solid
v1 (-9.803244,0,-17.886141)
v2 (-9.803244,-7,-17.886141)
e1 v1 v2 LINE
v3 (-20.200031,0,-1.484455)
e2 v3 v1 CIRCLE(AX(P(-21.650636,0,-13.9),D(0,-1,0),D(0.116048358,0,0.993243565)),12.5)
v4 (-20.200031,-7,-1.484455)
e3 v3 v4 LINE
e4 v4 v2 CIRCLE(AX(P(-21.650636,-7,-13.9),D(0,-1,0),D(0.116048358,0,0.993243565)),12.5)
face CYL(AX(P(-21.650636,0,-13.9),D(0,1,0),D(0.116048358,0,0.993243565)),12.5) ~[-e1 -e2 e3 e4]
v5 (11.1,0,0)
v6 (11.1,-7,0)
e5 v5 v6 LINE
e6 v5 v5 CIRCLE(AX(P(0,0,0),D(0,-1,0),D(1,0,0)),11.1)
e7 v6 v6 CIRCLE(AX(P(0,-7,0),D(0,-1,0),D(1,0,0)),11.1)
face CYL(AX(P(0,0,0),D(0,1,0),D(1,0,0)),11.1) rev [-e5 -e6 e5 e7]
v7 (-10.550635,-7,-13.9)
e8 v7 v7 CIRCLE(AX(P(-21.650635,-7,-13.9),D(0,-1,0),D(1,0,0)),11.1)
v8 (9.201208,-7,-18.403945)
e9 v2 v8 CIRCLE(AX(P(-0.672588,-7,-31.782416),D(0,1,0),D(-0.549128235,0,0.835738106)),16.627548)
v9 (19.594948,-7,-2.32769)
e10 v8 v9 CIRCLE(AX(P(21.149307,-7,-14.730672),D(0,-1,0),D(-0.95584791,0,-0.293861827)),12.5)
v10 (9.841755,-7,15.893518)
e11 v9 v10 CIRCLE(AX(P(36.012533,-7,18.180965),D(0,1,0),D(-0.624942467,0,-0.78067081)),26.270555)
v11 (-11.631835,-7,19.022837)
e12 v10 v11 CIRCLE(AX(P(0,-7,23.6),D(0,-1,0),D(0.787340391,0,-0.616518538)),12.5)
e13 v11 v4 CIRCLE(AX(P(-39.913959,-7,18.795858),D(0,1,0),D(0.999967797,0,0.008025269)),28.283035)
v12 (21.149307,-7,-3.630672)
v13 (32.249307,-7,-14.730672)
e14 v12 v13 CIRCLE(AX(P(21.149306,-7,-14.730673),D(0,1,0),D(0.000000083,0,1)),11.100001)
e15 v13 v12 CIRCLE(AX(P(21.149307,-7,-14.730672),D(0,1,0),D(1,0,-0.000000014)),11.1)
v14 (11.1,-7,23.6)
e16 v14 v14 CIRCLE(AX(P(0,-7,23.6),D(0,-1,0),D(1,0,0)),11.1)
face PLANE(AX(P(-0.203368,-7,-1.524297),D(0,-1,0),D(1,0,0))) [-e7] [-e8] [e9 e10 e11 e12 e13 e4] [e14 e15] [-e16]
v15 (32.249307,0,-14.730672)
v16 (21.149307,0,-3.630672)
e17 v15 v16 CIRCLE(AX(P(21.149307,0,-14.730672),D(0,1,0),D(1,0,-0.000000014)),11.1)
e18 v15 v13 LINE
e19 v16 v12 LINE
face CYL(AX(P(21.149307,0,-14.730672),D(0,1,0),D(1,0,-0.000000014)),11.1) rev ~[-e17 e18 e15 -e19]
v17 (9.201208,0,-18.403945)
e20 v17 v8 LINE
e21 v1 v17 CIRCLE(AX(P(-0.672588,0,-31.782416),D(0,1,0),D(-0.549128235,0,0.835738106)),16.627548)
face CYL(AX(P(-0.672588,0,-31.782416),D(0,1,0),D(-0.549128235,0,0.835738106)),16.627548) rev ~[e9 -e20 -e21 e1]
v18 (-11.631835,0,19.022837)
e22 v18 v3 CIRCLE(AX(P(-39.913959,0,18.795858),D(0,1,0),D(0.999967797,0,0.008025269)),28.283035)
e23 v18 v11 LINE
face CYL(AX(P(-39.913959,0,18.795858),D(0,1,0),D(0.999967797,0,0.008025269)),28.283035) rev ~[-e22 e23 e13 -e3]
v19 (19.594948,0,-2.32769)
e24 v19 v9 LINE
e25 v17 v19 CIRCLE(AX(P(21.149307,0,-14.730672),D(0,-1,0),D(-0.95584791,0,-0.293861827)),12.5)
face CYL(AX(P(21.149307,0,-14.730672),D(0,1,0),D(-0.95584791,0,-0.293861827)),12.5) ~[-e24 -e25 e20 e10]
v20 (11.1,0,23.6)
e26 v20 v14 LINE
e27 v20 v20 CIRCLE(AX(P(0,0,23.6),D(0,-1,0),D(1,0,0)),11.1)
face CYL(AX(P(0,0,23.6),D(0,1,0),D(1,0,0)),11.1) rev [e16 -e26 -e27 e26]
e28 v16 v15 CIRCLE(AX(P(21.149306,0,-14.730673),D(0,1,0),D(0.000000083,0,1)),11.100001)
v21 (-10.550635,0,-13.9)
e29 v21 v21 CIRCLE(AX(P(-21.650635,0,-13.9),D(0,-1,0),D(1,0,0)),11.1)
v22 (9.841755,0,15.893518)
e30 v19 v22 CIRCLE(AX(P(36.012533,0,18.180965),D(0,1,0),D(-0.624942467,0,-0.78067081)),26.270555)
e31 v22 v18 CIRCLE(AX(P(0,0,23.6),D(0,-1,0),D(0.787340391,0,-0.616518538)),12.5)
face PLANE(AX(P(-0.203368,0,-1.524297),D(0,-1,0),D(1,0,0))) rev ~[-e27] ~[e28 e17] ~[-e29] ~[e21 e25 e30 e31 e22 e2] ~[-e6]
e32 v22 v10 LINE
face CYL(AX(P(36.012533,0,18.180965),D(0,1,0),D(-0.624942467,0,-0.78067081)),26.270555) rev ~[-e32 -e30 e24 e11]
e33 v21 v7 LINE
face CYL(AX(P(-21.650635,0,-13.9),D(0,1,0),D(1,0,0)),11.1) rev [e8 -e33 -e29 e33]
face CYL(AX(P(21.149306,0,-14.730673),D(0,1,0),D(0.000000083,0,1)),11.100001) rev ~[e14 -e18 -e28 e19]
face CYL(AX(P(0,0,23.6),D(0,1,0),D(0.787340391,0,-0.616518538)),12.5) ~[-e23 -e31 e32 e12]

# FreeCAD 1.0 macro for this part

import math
import FreeCAD as App
import Part
import Sketcher
from FreeCAD import Vector
Q = App.Units.Quantity

doc = App.newDocument("Part")
params = doc.addObject("Spreadsheet::Sheet", "Params")
for row, (alias, value) in enumerate([
    ("sketch1_diameter", "22.2 mm"),
    ("sketch1_radius", "12.5 mm"),
    ("pad1_length", "7 mm"),
], start=1):
    params.set(f"A{row}", alias)
    params.set(f"B{row}", "=" + value)
    params.setAlias(f"B{row}", alias)

body = doc.addObject("PartDesign::Body", "Body")

# Sketch on XZ plane
sketch1 = body.newObject("Sketcher::SketchObject", "Sketch")
sketch1.AttachmentSupport = (doc.getObject("XZ_Plane"), [""])
sketch1.MapMode = "FlatFace"
sketch1.addGeometry([
    Part.ArcOfCircle(Part.Circle(Vector(-40, 19, 0), Vector(0, 0, 1), 28), math.radians(-46), math.radians(0)),  # 0
    Part.ArcOfCircle(Part.Circle(Vector(-22, -14, 0), Vector(0, 0, 1), 13), math.radians(83), math.radians(341)),  # 1
    Part.ArcOfCircle(Part.Circle(Vector(-1, -32, 0), Vector(0, 0, 1), 17), math.radians(54), math.radians(123)),  # 2
    Part.ArcOfCircle(Part.Circle(Vector(21, -15, 0), Vector(0, 0, 1), 12), math.radians(-163), math.radians(97)),  # 3
    Part.ArcOfCircle(Part.Circle(Vector(36, 18, 0), Vector(0, 0, 1), 26), math.radians(-175), math.radians(-129)),  # 4
    Part.ArcOfCircle(Part.Circle(Vector(0, 24, 0), Vector(0, 0, 1), 13), math.radians(-38), math.radians(201)),  # 5
    Part.Circle(Vector(-22, -14, 0), Vector(0, 0, 1), 11),  # 6
    Part.ArcOfCircle(Part.Circle(Vector(21, -15, 0), Vector(0, 0, 1), 11), math.radians(90), math.radians(360)),  # 7
    Part.ArcOfCircle(Part.Circle(Vector(21, -15, 0), Vector(0, 0, 1), 11), math.radians(0), math.radians(90)),  # 8
    Part.Circle(Vector(0, 0, 0), Vector(0, 0, 1), 11),  # 9
    Part.Circle(Vector(0, 24, 0), Vector(0, 0, 1), 11),  # 10
], False)
sketch1.addConstraint([
    Sketcher.Constraint("Coincident", 0, 1, 1, 1),
    Sketcher.Constraint("Coincident", 1, 2, 2, 2),
    Sketcher.Constraint("Coincident", 2, 1, 3, 1),
    Sketcher.Constraint("Coincident", 3, 2, 4, 2),
    Sketcher.Constraint("Coincident", 4, 1, 5, 1),
    Sketcher.Constraint("Coincident", 5, 2, 0, 2),
    Sketcher.Constraint("Tangent", 7, 1, 8, 2),
    Sketcher.Constraint("Coincident", 8, 1, 7, 2),
    Sketcher.Constraint("Coincident", 9, 3, -1, 1),
    Sketcher.Constraint("Coincident", 6, 3, 1, 3),
    Sketcher.Constraint("Coincident", 7, 3, 3, 3),
    Sketcher.Constraint("Coincident", 10, 3, 5, 3),
    Sketcher.Constraint("Equal", 1, 3),
    Sketcher.Constraint("Equal", 3, 5),
    Sketcher.Constraint("Equal", 6, 7),
    Sketcher.Constraint("Equal", 8, 9),
    Sketcher.Constraint("Equal", 9, 10),
    Sketcher.Constraint("PointOnObject", 5, 3, -2),
    Sketcher.Constraint("Horizontal", 7, 3, 8, 1),
    Sketcher.Constraint("Vertical", 8, 3, 7, 1),
    Sketcher.Constraint("Diameter", 6, Q("22.2 mm")),
    Sketcher.Constraint("Radius", 1, Q("12.5 mm")),
    Sketcher.Constraint("DistanceY", 1, 3, -1, 1, Q("13.9 mm")),
    Sketcher.Constraint("DistanceY", -1, 1, 5, 3, Q("23.6 mm")),
    Sketcher.Constraint("Radius", 0, Q("28.283035 mm")),
    Sketcher.Constraint("Radius", 2, Q("16.627548 mm")),
    Sketcher.Constraint("Radius", 4, Q("26.270555 mm")),
    Sketcher.Constraint("DistanceX", 2, 1, 8, 3, Q("11.948098 mm")),
    Sketcher.Constraint("DistanceX", 0, 3, -1, 1, Q("39.913959 mm")),
    Sketcher.Constraint("DistanceY", -1, 1, 0, 3, Q("18.795858 mm")),
    Sketcher.Constraint("DistanceX", 2, 3, -1, 1, Q("0.672588 mm")),
    Sketcher.Constraint("DistanceY", 7, 3, -1, 1, Q("14.730672 mm")),
    Sketcher.Constraint("DistanceX", 0, 1, -1, 1, Q("20.200031 mm")),
    Sketcher.Constraint("DistanceY", 1, 2, -1, 1, Q("17.886141 mm")),
    Sketcher.Constraint("DistanceX", -1, 1, 3, 2, Q("19.594948 mm")),
    Sketcher.Constraint("DistanceX", 2, 3, 4, 3, Q("36.685122 mm")),
])
sketch1.setExpression("Constraints[20]", "Params.sketch1_diameter")
sketch1.setExpression("Constraints[21]", "Params.sketch1_radius")
pad1 = body.newObject("PartDesign::Pad", "Pad")
pad1.Profile = sketch1
pad1.setExpression("Length", "Params.pad1_length")

doc.recompute()
